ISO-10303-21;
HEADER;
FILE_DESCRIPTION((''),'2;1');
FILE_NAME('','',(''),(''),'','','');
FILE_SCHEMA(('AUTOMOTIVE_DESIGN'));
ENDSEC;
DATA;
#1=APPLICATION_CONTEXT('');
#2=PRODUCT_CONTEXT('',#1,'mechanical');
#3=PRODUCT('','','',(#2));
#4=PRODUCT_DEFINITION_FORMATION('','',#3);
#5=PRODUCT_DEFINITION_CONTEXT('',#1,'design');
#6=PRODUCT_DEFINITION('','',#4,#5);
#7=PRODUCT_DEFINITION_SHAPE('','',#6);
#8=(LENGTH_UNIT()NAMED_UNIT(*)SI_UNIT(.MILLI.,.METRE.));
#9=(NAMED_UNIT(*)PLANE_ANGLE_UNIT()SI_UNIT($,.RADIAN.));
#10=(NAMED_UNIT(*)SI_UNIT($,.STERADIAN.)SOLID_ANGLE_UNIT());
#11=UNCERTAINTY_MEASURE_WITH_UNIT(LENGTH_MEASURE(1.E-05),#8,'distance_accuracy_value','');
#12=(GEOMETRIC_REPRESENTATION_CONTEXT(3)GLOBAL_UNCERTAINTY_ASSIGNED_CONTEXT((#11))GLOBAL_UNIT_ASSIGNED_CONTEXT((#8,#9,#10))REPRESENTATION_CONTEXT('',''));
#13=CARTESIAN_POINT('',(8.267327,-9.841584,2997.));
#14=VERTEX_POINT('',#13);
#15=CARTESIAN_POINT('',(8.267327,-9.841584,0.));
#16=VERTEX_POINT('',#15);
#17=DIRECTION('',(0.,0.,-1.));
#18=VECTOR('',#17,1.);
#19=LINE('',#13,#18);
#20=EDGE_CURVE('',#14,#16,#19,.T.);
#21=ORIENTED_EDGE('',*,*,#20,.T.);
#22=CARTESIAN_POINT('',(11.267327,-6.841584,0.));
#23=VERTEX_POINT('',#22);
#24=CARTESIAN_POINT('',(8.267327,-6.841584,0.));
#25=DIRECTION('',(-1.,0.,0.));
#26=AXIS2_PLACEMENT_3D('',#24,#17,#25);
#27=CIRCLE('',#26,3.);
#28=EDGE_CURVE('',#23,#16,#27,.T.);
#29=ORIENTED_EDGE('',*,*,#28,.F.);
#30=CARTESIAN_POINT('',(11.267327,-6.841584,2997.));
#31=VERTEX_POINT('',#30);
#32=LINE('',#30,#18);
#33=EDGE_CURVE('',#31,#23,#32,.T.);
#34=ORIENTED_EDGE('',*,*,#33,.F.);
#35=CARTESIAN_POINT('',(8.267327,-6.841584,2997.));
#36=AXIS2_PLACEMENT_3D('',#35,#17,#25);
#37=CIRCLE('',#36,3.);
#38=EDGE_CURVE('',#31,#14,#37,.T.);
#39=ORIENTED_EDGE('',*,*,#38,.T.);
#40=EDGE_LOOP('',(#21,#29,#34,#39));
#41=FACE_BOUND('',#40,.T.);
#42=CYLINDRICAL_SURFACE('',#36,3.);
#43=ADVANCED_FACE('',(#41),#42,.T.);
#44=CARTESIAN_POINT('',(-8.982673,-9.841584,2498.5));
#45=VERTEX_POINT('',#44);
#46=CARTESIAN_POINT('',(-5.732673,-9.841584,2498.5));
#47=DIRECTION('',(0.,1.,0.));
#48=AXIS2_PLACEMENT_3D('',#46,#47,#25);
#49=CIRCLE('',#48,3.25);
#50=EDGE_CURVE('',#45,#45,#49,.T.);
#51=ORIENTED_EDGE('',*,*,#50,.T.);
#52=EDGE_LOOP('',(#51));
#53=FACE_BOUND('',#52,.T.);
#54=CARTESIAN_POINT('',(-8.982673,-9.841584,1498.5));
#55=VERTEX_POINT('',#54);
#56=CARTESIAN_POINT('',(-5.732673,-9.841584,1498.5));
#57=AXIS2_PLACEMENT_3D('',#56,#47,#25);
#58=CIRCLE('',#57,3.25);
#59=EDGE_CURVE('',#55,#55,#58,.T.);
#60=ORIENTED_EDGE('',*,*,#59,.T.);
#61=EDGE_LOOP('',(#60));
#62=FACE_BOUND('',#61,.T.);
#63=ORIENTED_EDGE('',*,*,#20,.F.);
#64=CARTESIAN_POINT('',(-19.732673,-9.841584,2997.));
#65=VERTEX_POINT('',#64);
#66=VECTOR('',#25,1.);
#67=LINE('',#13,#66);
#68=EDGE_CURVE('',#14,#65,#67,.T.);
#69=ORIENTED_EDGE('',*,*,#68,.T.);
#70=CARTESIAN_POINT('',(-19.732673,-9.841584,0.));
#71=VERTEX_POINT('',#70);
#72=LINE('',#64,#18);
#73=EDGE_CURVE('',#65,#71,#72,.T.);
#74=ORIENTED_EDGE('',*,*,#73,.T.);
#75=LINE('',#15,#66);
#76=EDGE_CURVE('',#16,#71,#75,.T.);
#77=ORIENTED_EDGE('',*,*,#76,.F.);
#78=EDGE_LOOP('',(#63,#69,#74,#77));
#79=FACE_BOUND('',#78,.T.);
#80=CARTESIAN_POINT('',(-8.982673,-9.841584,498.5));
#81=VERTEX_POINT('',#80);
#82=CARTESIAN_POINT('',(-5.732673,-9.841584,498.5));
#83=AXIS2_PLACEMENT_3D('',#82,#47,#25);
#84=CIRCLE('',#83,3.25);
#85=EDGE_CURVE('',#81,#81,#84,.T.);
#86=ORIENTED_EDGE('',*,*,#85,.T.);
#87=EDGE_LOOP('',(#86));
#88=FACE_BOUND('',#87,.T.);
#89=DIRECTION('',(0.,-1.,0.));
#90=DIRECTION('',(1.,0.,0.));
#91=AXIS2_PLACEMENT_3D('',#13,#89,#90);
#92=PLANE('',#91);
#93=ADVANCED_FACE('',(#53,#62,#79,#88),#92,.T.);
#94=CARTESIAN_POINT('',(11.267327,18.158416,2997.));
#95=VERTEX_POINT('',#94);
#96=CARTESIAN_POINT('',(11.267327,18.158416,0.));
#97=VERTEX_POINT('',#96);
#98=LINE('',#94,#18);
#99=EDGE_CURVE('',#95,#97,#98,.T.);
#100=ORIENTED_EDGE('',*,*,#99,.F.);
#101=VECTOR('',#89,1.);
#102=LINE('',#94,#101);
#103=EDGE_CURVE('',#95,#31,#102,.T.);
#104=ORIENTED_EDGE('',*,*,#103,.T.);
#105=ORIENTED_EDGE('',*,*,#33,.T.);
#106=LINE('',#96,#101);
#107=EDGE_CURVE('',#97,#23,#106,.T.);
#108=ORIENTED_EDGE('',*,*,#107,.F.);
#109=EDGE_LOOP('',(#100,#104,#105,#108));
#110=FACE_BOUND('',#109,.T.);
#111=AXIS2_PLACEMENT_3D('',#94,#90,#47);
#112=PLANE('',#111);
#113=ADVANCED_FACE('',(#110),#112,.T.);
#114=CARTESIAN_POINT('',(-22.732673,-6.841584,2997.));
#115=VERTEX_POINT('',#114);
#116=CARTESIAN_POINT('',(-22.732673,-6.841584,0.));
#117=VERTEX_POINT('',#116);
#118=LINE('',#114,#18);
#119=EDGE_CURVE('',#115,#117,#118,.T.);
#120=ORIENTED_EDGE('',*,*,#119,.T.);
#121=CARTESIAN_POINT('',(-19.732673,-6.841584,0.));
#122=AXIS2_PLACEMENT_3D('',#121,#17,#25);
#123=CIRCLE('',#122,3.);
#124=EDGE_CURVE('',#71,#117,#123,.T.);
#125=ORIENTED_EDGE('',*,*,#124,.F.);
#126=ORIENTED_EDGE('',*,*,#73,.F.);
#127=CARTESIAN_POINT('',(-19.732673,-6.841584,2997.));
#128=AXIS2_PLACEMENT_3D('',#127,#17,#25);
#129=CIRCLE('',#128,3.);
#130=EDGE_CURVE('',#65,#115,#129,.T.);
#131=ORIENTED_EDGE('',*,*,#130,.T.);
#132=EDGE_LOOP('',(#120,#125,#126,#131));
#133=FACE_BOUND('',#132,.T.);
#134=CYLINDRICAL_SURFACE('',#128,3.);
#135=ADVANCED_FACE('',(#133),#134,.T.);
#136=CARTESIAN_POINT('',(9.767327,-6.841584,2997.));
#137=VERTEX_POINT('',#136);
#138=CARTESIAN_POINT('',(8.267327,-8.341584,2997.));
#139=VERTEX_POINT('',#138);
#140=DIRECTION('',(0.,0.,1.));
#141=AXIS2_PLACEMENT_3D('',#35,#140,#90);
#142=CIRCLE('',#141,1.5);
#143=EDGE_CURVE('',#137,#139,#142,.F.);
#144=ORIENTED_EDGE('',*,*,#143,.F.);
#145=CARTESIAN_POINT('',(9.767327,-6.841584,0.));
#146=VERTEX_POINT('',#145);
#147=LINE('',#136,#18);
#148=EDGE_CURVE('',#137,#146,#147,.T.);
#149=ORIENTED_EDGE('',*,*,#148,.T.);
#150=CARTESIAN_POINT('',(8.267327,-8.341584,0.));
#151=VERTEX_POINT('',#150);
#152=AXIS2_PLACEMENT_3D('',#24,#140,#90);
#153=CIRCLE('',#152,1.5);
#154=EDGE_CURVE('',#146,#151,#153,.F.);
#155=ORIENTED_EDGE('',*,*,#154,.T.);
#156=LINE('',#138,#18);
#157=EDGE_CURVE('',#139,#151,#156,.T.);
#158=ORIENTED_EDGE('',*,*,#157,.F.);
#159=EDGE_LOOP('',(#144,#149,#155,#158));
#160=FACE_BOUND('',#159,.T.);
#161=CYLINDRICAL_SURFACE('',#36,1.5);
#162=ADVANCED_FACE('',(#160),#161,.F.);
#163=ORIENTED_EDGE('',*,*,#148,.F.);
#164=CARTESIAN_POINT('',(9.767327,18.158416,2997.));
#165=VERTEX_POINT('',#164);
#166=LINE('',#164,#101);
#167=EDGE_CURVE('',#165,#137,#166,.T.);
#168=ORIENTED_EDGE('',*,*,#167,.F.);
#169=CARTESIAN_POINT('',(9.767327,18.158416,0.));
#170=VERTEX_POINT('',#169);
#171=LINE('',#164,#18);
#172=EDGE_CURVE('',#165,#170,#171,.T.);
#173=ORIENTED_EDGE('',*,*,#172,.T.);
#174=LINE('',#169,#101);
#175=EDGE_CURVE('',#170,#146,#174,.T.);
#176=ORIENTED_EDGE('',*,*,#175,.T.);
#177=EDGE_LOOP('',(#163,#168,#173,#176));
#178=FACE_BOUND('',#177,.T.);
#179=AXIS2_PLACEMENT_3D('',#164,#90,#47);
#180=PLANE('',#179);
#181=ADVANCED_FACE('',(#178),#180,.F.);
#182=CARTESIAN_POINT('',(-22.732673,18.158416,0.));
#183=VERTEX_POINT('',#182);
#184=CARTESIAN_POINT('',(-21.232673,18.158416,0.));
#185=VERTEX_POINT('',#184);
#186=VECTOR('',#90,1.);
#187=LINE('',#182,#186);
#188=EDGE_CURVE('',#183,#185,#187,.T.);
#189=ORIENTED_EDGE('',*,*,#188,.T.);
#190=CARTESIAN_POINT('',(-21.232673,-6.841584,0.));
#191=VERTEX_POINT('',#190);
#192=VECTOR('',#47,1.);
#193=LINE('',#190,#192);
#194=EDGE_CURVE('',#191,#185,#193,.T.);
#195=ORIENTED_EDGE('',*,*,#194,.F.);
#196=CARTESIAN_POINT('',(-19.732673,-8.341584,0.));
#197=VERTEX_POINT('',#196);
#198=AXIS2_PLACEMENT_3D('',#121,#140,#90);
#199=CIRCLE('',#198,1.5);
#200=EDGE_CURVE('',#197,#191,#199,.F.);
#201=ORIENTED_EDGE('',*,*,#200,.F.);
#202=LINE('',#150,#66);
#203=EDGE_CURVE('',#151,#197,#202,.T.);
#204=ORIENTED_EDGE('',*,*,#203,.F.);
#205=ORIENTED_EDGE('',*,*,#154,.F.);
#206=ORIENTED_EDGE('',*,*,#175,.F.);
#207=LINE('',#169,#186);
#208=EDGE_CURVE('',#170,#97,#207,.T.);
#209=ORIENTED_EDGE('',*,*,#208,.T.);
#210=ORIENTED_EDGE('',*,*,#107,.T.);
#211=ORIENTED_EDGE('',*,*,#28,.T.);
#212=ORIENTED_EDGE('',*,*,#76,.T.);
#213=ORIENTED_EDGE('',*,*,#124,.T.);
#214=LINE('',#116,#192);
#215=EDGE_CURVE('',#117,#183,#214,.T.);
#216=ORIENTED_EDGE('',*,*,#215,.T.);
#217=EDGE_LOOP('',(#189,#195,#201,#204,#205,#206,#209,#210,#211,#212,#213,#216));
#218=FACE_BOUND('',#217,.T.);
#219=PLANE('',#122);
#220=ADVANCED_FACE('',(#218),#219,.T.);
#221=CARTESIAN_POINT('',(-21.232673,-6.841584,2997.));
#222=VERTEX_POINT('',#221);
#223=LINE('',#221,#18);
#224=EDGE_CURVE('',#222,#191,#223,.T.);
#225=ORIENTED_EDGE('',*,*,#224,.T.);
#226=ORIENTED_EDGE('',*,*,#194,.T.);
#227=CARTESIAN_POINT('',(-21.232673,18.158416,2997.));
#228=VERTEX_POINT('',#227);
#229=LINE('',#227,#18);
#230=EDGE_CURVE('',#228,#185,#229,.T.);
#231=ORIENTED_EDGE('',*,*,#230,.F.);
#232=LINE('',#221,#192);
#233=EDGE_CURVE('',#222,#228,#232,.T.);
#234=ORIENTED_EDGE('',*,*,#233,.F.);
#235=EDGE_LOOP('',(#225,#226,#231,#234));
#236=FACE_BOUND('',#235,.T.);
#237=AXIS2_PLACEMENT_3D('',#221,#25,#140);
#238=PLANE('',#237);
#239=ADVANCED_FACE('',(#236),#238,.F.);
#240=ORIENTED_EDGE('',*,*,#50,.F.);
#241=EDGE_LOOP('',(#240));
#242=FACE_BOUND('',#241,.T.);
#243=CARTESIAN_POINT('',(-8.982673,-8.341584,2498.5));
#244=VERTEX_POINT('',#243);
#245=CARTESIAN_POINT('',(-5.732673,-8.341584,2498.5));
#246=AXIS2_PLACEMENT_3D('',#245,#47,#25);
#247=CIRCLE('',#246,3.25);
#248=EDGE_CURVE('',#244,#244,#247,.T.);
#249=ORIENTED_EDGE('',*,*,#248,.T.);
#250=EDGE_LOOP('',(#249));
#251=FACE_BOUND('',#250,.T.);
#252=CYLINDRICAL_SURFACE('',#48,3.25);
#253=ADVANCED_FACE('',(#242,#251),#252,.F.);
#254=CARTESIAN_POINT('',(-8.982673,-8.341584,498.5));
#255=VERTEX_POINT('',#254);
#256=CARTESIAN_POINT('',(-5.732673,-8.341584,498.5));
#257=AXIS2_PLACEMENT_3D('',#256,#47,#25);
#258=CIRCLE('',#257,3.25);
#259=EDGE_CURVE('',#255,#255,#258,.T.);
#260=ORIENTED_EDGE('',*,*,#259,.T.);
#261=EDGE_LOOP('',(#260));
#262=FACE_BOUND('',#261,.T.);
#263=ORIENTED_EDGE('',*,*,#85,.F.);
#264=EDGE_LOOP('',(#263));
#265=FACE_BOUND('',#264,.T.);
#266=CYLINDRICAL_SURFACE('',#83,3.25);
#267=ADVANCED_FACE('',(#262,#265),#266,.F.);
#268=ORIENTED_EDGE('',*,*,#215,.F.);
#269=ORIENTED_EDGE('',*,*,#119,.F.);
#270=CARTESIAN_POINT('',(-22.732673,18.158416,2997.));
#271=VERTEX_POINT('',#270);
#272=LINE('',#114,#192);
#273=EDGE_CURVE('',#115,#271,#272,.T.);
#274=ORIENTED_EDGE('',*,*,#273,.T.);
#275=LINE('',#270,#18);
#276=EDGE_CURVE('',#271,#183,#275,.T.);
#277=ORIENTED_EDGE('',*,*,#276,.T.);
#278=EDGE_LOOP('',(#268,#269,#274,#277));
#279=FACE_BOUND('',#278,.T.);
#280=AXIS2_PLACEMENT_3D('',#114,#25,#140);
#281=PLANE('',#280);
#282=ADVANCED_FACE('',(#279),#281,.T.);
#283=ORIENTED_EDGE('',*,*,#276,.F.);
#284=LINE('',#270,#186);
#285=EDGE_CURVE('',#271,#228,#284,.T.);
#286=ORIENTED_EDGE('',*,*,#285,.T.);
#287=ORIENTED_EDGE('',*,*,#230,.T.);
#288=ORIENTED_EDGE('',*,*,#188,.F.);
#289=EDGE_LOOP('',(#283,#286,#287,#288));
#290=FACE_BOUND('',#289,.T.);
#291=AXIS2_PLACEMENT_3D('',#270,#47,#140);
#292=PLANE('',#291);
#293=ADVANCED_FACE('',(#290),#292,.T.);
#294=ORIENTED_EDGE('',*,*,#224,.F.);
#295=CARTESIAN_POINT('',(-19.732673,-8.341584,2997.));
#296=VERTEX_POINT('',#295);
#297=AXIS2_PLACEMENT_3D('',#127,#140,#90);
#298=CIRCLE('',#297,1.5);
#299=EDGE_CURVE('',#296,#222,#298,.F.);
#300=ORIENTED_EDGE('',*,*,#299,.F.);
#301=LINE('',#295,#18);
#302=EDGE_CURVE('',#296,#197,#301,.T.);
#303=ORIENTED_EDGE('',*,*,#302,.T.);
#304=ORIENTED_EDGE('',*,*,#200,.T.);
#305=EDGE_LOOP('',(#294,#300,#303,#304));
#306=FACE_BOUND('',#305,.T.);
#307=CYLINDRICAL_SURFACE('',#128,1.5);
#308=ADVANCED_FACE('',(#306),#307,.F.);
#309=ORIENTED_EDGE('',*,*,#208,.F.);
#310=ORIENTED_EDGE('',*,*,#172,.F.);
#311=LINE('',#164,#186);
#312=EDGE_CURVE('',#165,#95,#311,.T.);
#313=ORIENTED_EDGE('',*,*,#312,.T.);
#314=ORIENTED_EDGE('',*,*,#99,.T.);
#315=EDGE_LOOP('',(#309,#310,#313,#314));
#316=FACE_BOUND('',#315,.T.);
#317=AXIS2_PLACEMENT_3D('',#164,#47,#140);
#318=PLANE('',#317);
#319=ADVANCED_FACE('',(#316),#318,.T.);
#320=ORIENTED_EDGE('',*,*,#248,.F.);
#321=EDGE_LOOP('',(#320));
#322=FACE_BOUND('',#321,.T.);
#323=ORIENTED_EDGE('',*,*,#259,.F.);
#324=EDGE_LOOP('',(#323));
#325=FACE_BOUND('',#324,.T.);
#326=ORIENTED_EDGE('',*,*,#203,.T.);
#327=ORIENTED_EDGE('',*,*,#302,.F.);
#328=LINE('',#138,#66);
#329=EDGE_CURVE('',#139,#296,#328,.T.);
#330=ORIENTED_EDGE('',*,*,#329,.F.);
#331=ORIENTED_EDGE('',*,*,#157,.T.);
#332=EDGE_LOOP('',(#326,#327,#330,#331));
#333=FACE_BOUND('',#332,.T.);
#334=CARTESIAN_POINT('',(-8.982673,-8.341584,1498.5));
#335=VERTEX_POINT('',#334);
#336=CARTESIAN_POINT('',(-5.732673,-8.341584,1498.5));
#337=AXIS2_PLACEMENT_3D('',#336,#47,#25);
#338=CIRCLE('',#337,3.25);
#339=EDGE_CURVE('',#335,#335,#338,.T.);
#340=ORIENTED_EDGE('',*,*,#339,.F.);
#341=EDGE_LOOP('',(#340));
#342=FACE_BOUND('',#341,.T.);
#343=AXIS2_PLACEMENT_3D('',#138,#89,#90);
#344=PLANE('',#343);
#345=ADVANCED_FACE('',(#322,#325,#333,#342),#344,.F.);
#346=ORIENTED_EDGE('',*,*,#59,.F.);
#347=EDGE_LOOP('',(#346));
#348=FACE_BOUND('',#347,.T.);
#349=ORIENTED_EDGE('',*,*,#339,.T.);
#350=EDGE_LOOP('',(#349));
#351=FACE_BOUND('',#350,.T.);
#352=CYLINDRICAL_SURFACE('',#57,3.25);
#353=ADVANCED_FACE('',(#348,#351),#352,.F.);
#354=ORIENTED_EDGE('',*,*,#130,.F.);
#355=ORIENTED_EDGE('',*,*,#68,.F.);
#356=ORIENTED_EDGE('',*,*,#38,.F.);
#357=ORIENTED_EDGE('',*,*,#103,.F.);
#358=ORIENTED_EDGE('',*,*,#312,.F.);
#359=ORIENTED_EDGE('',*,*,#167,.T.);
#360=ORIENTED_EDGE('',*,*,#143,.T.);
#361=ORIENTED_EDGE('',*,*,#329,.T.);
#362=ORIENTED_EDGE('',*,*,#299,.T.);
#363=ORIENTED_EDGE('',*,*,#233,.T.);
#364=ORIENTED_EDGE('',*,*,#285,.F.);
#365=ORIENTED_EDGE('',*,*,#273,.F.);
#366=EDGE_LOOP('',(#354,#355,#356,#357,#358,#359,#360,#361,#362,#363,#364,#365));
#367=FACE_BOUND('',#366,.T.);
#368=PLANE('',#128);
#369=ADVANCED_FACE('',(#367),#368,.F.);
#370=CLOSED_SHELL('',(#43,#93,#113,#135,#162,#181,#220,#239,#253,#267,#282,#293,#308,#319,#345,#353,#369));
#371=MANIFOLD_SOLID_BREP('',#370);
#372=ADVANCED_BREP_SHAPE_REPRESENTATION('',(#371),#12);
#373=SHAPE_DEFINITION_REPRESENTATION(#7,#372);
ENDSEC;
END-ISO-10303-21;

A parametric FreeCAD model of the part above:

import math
import FreeCAD as App
import Part
import Sketcher

doc = App.newDocument("Part")
body = doc.addObject("PartDesign::Body", "Body")

# Sketch on XY plane
sketch1 = doc.addObject("Sketcher::SketchObject", "Sketch")
body.addObject(sketch1)
sketch1.AttachmentSupport = (doc.XY_Plane, [""])
sketch1.MapMode = "FlatFace"
sketch1.addGeometry([
    Part.LineSegment(App.Vector(11.267327, -6.841584, 0), App.Vector(11.267327, 18.158416, 0)),  # 0
    Part.LineSegment(App.Vector(11.267327, 18.158416, 0), App.Vector(9.767327, 18.158416, 0)),  # 1
    Part.LineSegment(App.Vector(9.767327, 18.158416, 0), App.Vector(9.767327, -6.841584, 0)),  # 2
    Part.ArcOfCircle(Part.Circle(App.Vector(8.267327, -6.841584, 0), App.Vector(0, 0, 1), 1.5), math.radians(-90), math.radians(0)),  # 3
    Part.LineSegment(App.Vector(8.267327, -8.341584, 0), App.Vector(-19.732673, -8.341584, 0)),  # 4
    Part.ArcOfCircle(Part.Circle(App.Vector(-19.732673, -6.841584, 0), App.Vector(0, 0, 1), 1.5), math.radians(180), math.radians(270)),  # 5
    Part.LineSegment(App.Vector(-21.232673, -6.841584, 0), App.Vector(-21.232673, 18.158416, 0)),  # 6
    Part.LineSegment(App.Vector(-21.232673, 18.158416, 0), App.Vector(-22.732673, 18.158416, 0)),  # 7
    Part.LineSegment(App.Vector(-22.732673, 18.158416, 0), App.Vector(-22.732673, -6.841584, 0)),  # 8
    Part.ArcOfCircle(Part.Circle(App.Vector(-19.732673, -6.841584, 0), App.Vector(0, 0, 1), 3), math.radians(180), math.radians(270)),  # 9
    Part.LineSegment(App.Vector(-19.732673, -9.841584, 0), App.Vector(8.267327, -9.841584, 0)),  # 10
    Part.ArcOfCircle(Part.Circle(App.Vector(8.267327, -6.841584, 0), App.Vector(0, 0, 1), 3), math.radians(-90), math.radians(0)),  # 11
], False)
sketch1.addConstraint([
    Sketcher.Constraint("Coincident", 0, 2, 1, 1),
    Sketcher.Constraint("Coincident", 1, 2, 2, 1),
    Sketcher.Constraint("Tangent", 2, 2, 3, 2),
    Sketcher.Constraint("Tangent", 3, 1, 4, 1),
    Sketcher.Constraint("Tangent", 4, 2, 5, 2),
    Sketcher.Constraint("Tangent", 5, 1, 6, 1),
    Sketcher.Constraint("Coincident", 6, 2, 7, 1),
    Sketcher.Constraint("Coincident", 7, 2, 8, 1),
    Sketcher.Constraint("Tangent", 8, 2, 9, 1),
    Sketcher.Constraint("Tangent", 9, 2, 10, 1),
    Sketcher.Constraint("Tangent", 10, 2, 11, 1),
    Sketcher.Constraint("Tangent", 11, 2, 0, 1),
    Sketcher.Constraint("Vertical", 0),
    Sketcher.Constraint("Horizontal", 1),
    Sketcher.Constraint("Vertical", 2),
    Sketcher.Constraint("Horizontal", 4),
    Sketcher.Constraint("Vertical", 6),
    Sketcher.Constraint("Horizontal", 7),
    Sketcher.Constraint("Vertical", 8),
    Sketcher.Constraint("Horizontal", 10),
    Sketcher.Constraint("Coincident", 9, 3, 5, 3),
    Sketcher.Constraint("Coincident", 11, 3, 3, 3),
    Sketcher.Constraint("Equal", 3, 5),
    Sketcher.Constraint("Horizontal", 1, 2, 6, 2),
    Sketcher.Constraint("Radius", 9, 3.0),
    Sketcher.Constraint("Radius", 3, 1.5),
    Sketcher.Constraint("DistanceX", 4, 2, 4, 1, 28.0),
    Sketcher.Constraint("DistanceY", 0, 1, 0, 2, 25.0),
    Sketcher.Constraint("DistanceX", -1, 1, 3, 3, 8.267327),
    Sketcher.Constraint("DistanceY", 3, 3, -1, 1, 6.841584),
])
pad1 = doc.addObject("PartDesign::Pad", "Pad")
body.addObject(pad1)
pad1.Profile = sketch1
pad1.Length = 2997

# Sketch on XZ plane
sketch2 = doc.addObject("Sketcher::SketchObject", "Sketch001")
body.addObject(sketch2)
sketch2.AttachmentSupport = (doc.XZ_Plane, [""])
sketch2.MapMode = "FlatFace"
sketch2.AttachmentOffset = App.Placement(App.Vector(0, 0, 8.341584), App.Rotation())
sketch2.addGeometry(Part.Circle(App.Vector(-5.732673, 2498.5, 0), App.Vector(0, 0, 1), 3.25), False)
sketch2.addConstraint([
    Sketcher.Constraint("Diameter", 0, 6.5),
    Sketcher.Constraint("DistanceY", -1, 1, 0, 3, 2498.5),
    Sketcher.Constraint("DistanceX", 0, 3, -1, 1, 5.732673),
])
pocket1 = doc.addObject("PartDesign::Pocket", "Pocket")
body.addObject(pocket1)
pocket1.Profile = sketch2
pocket1.Type = "ThroughAll"
pocket1.Reversed = True
doc.recompute()

linearpattern = doc.addObject("PartDesign::LinearPattern", "LinearPattern")
body.addObject(linearpattern)
linearpattern.Originals = [pocket1]
linearpattern.Direction = (doc.Z_Axis, [""])
linearpattern.Mode = "offset"
linearpattern.Offset = 1000
linearpattern.Occurrences = 3
linearpattern.Reversed = True
body.Tip = linearpattern

doc.recompute()
